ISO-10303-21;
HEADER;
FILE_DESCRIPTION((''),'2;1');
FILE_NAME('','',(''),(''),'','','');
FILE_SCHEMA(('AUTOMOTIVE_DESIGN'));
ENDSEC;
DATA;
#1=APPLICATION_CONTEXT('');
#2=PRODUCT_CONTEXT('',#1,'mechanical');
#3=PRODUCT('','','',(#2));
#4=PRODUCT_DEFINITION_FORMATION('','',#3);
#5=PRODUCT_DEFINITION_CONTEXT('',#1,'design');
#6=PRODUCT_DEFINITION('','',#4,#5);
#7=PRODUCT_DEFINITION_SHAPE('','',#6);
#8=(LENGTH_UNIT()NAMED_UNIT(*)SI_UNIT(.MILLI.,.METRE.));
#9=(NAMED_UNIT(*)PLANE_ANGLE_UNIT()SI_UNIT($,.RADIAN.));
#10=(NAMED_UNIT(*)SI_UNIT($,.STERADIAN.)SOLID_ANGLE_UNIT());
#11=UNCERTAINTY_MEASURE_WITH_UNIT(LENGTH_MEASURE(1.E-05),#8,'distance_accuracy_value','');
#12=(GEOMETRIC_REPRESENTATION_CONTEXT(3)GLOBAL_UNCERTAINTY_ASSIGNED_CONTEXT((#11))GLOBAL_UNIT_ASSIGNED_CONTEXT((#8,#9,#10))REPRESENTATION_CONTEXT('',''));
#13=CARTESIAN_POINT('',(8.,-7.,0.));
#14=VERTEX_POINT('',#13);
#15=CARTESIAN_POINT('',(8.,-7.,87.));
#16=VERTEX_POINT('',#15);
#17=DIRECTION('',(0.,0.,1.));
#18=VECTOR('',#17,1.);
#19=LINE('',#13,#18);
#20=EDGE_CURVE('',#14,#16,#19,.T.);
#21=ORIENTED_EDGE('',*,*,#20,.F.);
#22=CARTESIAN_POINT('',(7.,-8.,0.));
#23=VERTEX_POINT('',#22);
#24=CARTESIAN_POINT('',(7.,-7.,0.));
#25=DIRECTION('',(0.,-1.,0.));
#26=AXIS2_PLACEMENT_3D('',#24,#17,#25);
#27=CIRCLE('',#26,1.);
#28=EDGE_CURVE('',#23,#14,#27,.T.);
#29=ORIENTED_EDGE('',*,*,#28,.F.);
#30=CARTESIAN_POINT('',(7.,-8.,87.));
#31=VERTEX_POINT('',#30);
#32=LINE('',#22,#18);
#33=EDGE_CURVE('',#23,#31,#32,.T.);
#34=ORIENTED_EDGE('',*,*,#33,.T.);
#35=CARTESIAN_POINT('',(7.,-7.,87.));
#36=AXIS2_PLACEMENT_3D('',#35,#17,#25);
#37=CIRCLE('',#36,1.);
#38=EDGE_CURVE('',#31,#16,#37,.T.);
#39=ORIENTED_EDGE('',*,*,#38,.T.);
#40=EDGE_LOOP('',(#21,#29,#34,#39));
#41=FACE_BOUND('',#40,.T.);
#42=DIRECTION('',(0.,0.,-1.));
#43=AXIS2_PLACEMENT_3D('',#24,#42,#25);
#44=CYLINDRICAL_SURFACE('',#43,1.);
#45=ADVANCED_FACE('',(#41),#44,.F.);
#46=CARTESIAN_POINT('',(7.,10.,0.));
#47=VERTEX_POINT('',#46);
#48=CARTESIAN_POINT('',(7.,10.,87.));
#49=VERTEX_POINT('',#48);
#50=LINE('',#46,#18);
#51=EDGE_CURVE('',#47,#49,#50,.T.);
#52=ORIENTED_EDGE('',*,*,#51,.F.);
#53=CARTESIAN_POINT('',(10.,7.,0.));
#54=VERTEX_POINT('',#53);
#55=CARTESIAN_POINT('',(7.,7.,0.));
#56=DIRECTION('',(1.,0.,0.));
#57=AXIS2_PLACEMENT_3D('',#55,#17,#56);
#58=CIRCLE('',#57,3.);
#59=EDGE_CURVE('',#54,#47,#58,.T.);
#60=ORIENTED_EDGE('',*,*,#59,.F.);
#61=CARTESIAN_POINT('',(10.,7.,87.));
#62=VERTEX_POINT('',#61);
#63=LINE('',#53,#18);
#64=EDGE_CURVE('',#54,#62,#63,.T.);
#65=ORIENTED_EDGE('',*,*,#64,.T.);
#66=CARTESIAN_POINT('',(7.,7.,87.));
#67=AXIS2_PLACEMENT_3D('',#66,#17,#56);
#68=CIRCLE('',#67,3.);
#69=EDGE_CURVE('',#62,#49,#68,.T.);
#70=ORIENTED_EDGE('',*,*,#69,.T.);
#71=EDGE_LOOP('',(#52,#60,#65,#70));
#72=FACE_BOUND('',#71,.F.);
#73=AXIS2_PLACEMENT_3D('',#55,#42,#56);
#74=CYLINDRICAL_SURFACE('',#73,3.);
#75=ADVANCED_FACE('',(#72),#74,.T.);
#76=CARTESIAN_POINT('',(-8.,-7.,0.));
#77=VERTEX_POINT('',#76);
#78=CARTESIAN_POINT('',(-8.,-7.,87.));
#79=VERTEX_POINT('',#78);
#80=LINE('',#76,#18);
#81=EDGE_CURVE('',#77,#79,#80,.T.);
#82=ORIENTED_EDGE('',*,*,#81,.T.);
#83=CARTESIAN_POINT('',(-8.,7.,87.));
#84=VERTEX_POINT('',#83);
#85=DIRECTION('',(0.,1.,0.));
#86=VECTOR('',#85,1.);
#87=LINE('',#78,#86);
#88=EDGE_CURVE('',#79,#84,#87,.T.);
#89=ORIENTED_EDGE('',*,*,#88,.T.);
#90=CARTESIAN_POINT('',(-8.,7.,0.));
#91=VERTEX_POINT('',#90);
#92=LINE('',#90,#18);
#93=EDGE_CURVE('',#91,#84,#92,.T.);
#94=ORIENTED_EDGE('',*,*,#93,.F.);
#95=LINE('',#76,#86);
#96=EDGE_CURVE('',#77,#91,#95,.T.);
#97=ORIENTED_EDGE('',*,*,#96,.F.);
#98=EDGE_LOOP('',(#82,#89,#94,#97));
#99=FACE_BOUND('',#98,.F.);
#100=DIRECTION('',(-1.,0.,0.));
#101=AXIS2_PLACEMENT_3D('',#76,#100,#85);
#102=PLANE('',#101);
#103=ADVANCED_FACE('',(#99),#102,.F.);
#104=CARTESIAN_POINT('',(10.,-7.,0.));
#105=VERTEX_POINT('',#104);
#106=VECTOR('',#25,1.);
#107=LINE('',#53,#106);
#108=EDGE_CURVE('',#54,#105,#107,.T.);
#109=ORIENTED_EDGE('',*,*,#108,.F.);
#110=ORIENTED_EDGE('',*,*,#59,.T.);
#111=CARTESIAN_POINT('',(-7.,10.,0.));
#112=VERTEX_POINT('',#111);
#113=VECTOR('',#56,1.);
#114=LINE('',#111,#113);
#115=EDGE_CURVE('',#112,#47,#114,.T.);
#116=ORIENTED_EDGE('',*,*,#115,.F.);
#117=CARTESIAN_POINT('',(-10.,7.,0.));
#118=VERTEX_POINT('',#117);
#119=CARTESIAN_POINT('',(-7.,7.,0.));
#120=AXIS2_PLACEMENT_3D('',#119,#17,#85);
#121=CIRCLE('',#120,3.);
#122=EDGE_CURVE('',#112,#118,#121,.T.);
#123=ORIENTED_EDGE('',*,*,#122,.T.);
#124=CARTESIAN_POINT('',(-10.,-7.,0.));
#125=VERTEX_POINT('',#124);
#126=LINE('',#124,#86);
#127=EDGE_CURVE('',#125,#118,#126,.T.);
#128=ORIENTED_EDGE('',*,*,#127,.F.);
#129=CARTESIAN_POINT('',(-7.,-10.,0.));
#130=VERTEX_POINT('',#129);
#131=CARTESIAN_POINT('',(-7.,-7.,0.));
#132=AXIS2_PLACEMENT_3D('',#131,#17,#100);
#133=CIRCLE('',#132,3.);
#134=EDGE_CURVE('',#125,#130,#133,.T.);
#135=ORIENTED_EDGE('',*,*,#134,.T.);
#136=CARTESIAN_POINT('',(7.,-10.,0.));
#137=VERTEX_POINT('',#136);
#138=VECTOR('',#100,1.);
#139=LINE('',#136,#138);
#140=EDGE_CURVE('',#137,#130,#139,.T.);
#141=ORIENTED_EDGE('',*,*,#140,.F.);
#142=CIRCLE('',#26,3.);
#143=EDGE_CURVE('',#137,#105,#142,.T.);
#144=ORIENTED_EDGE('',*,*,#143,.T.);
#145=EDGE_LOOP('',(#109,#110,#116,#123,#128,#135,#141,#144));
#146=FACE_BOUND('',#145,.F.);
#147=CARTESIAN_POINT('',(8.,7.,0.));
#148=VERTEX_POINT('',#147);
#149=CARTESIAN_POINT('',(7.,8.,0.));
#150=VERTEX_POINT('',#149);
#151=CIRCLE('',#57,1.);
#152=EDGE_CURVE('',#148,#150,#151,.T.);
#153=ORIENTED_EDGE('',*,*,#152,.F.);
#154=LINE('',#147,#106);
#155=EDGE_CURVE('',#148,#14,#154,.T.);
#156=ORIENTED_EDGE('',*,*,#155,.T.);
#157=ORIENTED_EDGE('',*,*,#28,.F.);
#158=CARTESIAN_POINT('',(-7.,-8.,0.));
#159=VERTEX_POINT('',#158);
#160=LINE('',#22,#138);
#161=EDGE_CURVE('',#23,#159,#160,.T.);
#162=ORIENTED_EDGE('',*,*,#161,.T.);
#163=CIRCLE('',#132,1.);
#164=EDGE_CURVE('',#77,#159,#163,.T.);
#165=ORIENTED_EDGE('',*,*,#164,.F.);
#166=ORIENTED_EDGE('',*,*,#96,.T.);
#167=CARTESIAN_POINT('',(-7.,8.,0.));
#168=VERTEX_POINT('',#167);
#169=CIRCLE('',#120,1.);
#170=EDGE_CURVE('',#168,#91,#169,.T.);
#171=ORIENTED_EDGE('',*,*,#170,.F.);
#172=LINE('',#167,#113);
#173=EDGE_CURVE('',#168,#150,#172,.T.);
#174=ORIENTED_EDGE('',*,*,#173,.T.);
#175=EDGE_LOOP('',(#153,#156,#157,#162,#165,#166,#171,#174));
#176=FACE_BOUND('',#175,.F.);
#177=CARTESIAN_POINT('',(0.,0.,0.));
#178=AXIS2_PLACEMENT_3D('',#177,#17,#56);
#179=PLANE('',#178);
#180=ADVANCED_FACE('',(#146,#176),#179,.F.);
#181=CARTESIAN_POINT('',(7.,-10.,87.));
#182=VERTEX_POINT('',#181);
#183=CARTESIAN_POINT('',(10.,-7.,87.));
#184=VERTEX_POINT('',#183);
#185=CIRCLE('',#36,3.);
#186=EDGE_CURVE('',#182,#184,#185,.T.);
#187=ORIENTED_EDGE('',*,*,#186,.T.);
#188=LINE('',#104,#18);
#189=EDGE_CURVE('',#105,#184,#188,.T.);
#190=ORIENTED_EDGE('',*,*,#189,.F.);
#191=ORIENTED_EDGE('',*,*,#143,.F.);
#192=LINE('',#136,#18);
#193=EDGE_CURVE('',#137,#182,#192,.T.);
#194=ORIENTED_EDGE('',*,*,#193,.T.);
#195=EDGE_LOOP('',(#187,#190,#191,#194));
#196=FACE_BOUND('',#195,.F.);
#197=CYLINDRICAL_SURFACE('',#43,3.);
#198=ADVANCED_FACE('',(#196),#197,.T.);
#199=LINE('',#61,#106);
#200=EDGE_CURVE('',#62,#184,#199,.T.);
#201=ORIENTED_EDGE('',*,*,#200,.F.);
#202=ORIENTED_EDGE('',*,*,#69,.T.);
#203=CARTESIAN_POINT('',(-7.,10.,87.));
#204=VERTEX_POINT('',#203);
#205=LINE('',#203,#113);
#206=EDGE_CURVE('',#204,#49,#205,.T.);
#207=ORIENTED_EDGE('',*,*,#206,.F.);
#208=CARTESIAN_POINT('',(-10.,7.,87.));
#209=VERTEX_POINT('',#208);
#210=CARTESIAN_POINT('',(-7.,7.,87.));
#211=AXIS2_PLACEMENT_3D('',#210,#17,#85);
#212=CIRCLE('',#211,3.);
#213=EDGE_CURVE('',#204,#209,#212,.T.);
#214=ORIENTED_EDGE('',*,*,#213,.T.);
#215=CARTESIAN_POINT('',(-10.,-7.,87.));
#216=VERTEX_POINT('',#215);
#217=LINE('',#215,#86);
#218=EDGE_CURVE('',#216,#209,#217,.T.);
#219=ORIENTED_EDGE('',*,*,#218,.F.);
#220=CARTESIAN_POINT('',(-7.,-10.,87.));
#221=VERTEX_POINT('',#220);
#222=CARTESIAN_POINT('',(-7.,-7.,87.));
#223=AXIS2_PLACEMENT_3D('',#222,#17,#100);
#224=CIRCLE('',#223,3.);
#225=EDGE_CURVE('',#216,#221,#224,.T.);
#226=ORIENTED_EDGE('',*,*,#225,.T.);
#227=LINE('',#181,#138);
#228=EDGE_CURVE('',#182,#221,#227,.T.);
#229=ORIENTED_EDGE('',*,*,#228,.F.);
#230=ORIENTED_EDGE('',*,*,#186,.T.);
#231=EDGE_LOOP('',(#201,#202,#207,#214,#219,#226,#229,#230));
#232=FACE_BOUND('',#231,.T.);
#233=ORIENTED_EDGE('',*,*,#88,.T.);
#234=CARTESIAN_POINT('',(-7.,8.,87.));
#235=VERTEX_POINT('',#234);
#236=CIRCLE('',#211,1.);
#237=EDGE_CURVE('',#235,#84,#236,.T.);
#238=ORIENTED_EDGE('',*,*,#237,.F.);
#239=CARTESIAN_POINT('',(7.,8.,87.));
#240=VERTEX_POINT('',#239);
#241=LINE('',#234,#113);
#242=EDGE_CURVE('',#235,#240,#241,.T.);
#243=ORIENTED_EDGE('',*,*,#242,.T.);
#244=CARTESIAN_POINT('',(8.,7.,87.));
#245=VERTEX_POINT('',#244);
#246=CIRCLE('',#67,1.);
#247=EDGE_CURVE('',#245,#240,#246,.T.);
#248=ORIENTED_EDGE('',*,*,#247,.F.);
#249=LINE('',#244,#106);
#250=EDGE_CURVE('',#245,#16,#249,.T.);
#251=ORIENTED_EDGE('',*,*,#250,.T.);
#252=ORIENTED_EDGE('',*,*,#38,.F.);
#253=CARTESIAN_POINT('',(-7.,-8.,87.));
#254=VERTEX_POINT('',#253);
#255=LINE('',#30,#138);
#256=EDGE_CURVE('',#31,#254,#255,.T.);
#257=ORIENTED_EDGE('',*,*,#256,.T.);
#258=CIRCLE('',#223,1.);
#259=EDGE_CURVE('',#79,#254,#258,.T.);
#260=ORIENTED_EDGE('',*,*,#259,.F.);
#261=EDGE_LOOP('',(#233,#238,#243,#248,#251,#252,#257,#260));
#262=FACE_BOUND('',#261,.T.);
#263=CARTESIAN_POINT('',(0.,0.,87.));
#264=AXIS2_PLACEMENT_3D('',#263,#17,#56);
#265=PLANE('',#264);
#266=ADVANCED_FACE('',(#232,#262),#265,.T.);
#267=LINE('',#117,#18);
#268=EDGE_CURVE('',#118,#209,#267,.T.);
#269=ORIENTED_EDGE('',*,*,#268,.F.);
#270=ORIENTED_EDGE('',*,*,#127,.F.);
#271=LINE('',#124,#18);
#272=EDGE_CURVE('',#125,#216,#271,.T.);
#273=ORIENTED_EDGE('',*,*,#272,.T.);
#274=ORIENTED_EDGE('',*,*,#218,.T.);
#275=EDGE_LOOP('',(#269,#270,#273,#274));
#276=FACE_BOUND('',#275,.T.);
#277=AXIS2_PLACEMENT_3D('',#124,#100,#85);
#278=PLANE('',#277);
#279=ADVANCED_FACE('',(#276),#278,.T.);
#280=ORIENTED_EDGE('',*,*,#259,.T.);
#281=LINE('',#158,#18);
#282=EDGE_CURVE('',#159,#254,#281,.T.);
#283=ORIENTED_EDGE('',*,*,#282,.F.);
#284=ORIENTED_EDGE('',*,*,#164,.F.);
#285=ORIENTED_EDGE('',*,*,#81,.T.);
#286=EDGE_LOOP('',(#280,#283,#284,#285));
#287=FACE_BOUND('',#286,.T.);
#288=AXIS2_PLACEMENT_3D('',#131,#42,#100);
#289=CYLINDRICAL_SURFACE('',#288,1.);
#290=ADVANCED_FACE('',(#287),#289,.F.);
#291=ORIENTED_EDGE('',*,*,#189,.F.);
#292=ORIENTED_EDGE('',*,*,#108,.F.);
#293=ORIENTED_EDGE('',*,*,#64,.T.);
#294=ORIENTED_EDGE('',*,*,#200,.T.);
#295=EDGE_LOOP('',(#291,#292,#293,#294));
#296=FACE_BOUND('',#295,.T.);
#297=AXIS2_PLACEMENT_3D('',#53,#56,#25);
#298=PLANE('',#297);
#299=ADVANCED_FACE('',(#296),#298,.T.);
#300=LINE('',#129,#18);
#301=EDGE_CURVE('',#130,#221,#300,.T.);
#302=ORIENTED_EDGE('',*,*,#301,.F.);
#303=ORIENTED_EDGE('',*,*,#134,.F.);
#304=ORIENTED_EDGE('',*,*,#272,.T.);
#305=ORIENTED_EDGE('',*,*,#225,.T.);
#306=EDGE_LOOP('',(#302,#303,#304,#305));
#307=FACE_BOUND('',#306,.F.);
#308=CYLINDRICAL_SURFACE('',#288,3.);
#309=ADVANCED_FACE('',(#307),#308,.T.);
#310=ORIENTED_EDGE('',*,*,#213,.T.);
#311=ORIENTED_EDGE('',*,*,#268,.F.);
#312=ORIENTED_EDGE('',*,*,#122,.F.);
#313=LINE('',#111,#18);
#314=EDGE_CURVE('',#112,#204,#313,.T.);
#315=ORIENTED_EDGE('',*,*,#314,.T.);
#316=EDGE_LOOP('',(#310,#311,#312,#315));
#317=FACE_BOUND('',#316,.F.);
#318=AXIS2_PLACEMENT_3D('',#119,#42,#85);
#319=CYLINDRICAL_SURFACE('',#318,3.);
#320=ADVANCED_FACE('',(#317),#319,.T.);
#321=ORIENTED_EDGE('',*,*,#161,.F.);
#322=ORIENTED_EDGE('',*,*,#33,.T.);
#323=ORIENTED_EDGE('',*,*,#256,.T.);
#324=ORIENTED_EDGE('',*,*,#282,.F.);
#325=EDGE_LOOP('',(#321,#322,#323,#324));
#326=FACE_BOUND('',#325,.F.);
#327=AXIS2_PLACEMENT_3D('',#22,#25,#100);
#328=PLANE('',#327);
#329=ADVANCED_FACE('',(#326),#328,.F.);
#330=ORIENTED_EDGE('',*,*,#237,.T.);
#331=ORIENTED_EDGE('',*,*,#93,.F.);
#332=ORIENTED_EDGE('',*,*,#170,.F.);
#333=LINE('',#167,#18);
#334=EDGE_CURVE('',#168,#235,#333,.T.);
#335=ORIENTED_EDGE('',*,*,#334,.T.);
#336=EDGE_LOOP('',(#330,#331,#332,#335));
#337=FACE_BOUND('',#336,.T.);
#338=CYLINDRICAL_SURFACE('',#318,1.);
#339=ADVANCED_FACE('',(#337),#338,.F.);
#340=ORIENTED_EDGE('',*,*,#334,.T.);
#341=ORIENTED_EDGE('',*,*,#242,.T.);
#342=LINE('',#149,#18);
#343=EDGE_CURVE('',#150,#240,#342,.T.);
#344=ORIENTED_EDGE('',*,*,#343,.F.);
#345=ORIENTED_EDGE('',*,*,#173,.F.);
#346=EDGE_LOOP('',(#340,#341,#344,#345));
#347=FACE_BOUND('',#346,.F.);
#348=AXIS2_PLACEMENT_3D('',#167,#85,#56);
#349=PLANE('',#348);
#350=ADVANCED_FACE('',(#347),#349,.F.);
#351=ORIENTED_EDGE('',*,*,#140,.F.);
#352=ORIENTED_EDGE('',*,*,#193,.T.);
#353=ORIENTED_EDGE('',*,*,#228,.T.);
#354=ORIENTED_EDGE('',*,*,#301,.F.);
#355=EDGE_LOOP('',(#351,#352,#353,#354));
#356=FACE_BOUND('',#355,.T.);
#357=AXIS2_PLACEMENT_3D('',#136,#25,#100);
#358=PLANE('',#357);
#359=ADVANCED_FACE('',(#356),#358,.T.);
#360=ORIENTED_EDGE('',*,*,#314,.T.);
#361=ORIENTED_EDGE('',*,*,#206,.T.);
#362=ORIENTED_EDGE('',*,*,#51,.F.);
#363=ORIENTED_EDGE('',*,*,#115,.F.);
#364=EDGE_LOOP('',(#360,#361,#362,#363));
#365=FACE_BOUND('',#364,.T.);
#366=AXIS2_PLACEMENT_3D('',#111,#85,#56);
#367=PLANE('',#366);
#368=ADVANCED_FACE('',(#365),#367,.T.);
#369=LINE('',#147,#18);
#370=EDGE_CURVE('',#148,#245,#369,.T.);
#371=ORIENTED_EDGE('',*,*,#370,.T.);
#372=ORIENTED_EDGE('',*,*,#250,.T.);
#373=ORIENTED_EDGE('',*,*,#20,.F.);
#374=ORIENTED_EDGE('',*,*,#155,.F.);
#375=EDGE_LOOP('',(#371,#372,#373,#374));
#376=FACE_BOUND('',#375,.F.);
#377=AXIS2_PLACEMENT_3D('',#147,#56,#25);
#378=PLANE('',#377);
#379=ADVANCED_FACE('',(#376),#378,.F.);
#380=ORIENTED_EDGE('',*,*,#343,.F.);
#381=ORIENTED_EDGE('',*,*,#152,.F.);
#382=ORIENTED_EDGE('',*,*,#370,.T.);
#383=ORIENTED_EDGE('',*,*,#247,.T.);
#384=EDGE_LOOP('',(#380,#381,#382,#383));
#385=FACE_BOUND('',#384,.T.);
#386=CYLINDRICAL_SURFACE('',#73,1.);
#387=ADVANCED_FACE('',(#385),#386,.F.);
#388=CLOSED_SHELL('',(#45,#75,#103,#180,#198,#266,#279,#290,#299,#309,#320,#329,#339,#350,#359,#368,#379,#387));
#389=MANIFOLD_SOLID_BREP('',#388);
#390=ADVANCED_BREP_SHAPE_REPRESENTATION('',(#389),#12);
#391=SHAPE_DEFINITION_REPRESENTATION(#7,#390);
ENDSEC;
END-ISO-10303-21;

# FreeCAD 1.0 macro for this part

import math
import FreeCAD as App
import Part
import Sketcher

V = App.Vector
Q = App.Units.Quantity

doc = App.newDocument("Part")
body = doc.addObject("PartDesign::Body", "Body")

# Sketch on XY plane
sketch1 = doc.addObject("Sketcher::SketchObject", "Sketch")
body.addObject(sketch1)
sketch1.AttachmentSupport = (doc.XY_Plane, [""])
sketch1.MapMode = "FlatFace"
sketch1.addGeometry(Part.LineSegment(V(-10, 7, 0), V(-10, -7, 0)), False)
sketch1.addGeometry(Part.ArcOfCircle(Part.Circle(V(-7, -7, 0), V(0, 0, 1), 3), math.radians(180), math.radians(270)), False)
sketch1.addGeometry(Part.LineSegment(V(-7, -10, 0), V(7, -10, 0)), False)
sketch1.addGeometry(Part.ArcOfCircle(Part.Circle(V(7, -7, 0), V(0, 0, 1), 3), math.radians(-90), math.radians(0)), False)
sketch1.addGeometry(Part.LineSegment(V(10, -7, 0), V(10, 7, 0)), False)
sketch1.addGeometry(Part.ArcOfCircle(Part.Circle(V(7, 7, 0), V(0, 0, 1), 3), math.radians(0), math.radians(90)), False)
sketch1.addGeometry(Part.LineSegment(V(7, 10, 0), V(-7, 10, 0)), False)
sketch1.addGeometry(Part.ArcOfCircle(Part.Circle(V(-7, 7, 0), V(0, 0, 1), 3), math.radians(90), math.radians(180)), False)
sketch1.addGeometry(Part.ArcOfCircle(Part.Circle(V(-7, 7, 0), V(0, 0, 1), 1), math.radians(90), math.radians(180)), False)
sketch1.addGeometry(Part.LineSegment(V(-7, 8, 0), V(7, 8, 0)), False)
sketch1.addGeometry(Part.ArcOfCircle(Part.Circle(V(7, 7, 0), V(0, 0, 1), 1), math.radians(0), math.radians(90)), False)
sketch1.addGeometry(Part.LineSegment(V(8, 7, 0), V(8, -7, 0)), False)
sketch1.addGeometry(Part.ArcOfCircle(Part.Circle(V(7, -7, 0), V(0, 0, 1), 1), math.radians(-90), math.radians(0)), False)
sketch1.addGeometry(Part.LineSegment(V(7, -8, 0), V(-7, -8, 0)), False)
sketch1.addGeometry(Part.ArcOfCircle(Part.Circle(V(-7, -7, 0), V(0, 0, 1), 1), math.radians(180), math.radians(270)), False)
sketch1.addGeometry(Part.LineSegment(V(-8, -7, 0), V(-8, 7, 0)), False)
sketch1.addConstraint(Sketcher.Constraint("Tangent", 0, 2, 1, 1))
sketch1.addConstraint(Sketcher.Constraint("Tangent", 1, 2, 2, 1))
sketch1.addConstraint(Sketcher.Constraint("Tangent", 2, 2, 3, 1))
sketch1.addConstraint(Sketcher.Constraint("Tangent", 3, 2, 4, 1))
sketch1.addConstraint(Sketcher.Constraint("Tangent", 4, 2, 5, 1))
sketch1.addConstraint(Sketcher.Constraint("Tangent", 5, 2, 6, 1))
sketch1.addConstraint(Sketcher.Constraint("Tangent", 6, 2, 7, 1))
sketch1.addConstraint(Sketcher.Constraint("Tangent", 7, 2, 0, 1))
sketch1.addConstraint(Sketcher.Constraint("Tangent", 8, 1, 9, 1))
sketch1.addConstraint(Sketcher.Constraint("Tangent", 9, 2, 10, 2))
sketch1.addConstraint(Sketcher.Constraint("Tangent", 10, 1, 11, 1))
sketch1.addConstraint(Sketcher.Constraint("Tangent", 11, 2, 12, 2))
sketch1.addConstraint(Sketcher.Constraint("Tangent", 12, 1, 13, 1))
sketch1.addConstraint(Sketcher.Constraint("Tangent", 13, 2, 14, 2))
sketch1.addConstraint(Sketcher.Constraint("Tangent", 14, 1, 15, 1))
sketch1.addConstraint(Sketcher.Constraint("Tangent", 15, 2, 8, 2))
sketch1.addConstraint(Sketcher.Constraint("Vertical", 0))
sketch1.addConstraint(Sketcher.Constraint("Horizontal", 2))
sketch1.addConstraint(Sketcher.Constraint("Vertical", 4))
sketch1.addConstraint(Sketcher.Constraint("Horizontal", 6))
sketch1.addConstraint(Sketcher.Constraint("Horizontal", 9))
sketch1.addConstraint(Sketcher.Constraint("Vertical", 11))
sketch1.addConstraint(Sketcher.Constraint("Horizontal", 13))
sketch1.addConstraint(Sketcher.Constraint("Vertical", 15))
sketch1.addConstraint(Sketcher.Constraint("Coincident", 8, 3, 7, 3))
sketch1.addConstraint(Sketcher.Constraint("Coincident", 10, 3, 5, 3))
sketch1.addConstraint(Sketcher.Constraint("Coincident", 12, 3, 3, 3))
sketch1.addConstraint(Sketcher.Constraint("Equal", 1, 3))
sketch1.addConstraint(Sketcher.Constraint("Equal", 3, 5))
sketch1.addConstraint(Sketcher.Constraint("Equal", 5, 7))
sketch1.addConstraint(Sketcher.Constraint("Equal", 12, 14))
sketch1.addConstraint(Sketcher.Constraint("Symmetric", 1, 3, 5, 3, -1, 1))
sketch1.addConstraint(Sketcher.Constraint("Equal", 13, 0))
sketch1.addConstraint(Sketcher.Constraint("Radius", 1, Q("3 mm")))
sketch1.addConstraint(Sketcher.Constraint("Radius", 8, Q("1 mm")))
sketch1.addConstraint(Sketcher.Constraint("DistanceX", 0, 2, -1, 1, Q("10 mm")))
pad1 = doc.addObject("PartDesign::Pad", "Pad")
body.addObject(pad1)
pad1.Profile = sketch1
pad1.Length = 87

doc.recompute()
